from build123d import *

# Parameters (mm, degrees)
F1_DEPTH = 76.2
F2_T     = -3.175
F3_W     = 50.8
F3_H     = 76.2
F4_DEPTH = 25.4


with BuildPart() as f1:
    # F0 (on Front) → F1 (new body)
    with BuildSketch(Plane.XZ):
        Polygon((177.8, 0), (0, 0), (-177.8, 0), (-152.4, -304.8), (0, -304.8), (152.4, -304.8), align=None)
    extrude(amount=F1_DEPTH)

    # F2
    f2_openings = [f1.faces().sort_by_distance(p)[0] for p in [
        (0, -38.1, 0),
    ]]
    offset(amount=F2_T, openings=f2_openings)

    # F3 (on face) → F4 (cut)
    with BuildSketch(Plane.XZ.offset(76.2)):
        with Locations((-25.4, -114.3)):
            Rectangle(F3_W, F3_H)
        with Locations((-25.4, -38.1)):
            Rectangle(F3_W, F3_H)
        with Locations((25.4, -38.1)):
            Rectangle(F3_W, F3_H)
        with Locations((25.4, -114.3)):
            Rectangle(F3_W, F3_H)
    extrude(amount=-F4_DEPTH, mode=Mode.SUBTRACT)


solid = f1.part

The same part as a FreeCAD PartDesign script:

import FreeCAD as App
import Part
import Sketcher
from FreeCAD import Vector
Q = App.Units.Quantity


def faces_at(feature, points):
    """Names of the faces that lie closest to the given points."""
    faces = feature.Shape.Faces
    near = lambda p: min(range(len(faces)), key=lambda i: faces[i].distToShape(Part.Vertex(*p))[0])
    return sorted({f"Face{near(p) + 1}" for p in points})


def add_polygon(sketch, points):
    """Adds a closed chain of lines whose ends are joined by coincident constraints."""
    first, n = sketch.GeometryCount, len(points)
    for a, b in zip(points, points[1:] + points[:1]):
        sketch.addGeometry(Part.LineSegment(App.Vector(*a, 0), App.Vector(*b, 0)), False)
    for i in range(n):
        sketch.addConstraint(Sketcher.Constraint("Coincident", first + i, 2, first + (i + 1) % n, 1))

doc = App.newDocument("Part")
body = doc.addObject("PartDesign::Body", "Body")

# Sketch on XZ plane
sketch1 = body.newObject("Sketcher::SketchObject", "Sketch")
sketch1.AttachmentSupport = (doc.getObject("XZ_Plane"), [""])
sketch1.MapMode = "FlatFace"
add_polygon(sketch1, [(178, 0), (-178, 0), (-152, -305), (152, -305)])  # lines 0-3
sketch1.addConstraint([
    Sketcher.Constraint("Horizontal", 0),
    Sketcher.Constraint("Horizontal", 2),
    Sketcher.Constraint("Symmetric", 0, 2, 3, 2, -1, 1),
    Sketcher.Constraint("Equal", 1, 3),
    Sketcher.Constraint("DistanceX", 0, 2, 0, 1, Q("14 in")),
    Sketcher.Constraint("DistanceX", 2, 1, 2, 2, Q("12 in")),
    Sketcher.Constraint("DistanceY", 1, 2, -1, 1, Q("12 in")),
])
pad1 = body.newObject("PartDesign::Pad", "Pad")
pad1.Profile = sketch1
pad1.Length = Q("3 in")
doc.recompute()

thickness = body.newObject("PartDesign::Thickness", "Thickness")
thickness.Base = (pad1, faces_at(pad1, [(0, -38.1, 0)]))
thickness.Value = Q("0.125 in")
thickness.Reversed = True
thickness.Join = "Arc"

# Sketch on XZ plane
sketch2 = body.newObject("Sketcher::SketchObject", "Sketch001")
sketch2.AttachmentSupport = (doc.getObject("XZ_Plane"), [""])
sketch2.MapMode = "FlatFace"
sketch2.AttachmentOffset = App.Placement(Vector(0, 0, 3 * 25.4), App.Rotation())
add_polygon(sketch2, [(-51, -152), (51, -152), (51, 0), (-51, 0)])  # lines 0-3
sketch2.addConstraint([
    Sketcher.Constraint("Horizontal", 0),
    Sketcher.Constraint("Vertical", 1),
    Sketcher.Constraint("Horizontal", 2),
    Sketcher.Constraint("Vertical", 3),
    Sketcher.Constraint("Symmetric", 1, 2, 2, 2, -1, 1),
    Sketcher.Constraint("DistanceX", 0, 1, 0, 2, Q("4 in")),
    Sketcher.Constraint("DistanceY", 1, 1, 1, 2, Q("6 in")),
])
pocket1 = body.newObject("PartDesign::Pocket", "Pocket")
pocket1.Profile = sketch2
pocket1.Length = Q("1 in")

doc.recompute()
